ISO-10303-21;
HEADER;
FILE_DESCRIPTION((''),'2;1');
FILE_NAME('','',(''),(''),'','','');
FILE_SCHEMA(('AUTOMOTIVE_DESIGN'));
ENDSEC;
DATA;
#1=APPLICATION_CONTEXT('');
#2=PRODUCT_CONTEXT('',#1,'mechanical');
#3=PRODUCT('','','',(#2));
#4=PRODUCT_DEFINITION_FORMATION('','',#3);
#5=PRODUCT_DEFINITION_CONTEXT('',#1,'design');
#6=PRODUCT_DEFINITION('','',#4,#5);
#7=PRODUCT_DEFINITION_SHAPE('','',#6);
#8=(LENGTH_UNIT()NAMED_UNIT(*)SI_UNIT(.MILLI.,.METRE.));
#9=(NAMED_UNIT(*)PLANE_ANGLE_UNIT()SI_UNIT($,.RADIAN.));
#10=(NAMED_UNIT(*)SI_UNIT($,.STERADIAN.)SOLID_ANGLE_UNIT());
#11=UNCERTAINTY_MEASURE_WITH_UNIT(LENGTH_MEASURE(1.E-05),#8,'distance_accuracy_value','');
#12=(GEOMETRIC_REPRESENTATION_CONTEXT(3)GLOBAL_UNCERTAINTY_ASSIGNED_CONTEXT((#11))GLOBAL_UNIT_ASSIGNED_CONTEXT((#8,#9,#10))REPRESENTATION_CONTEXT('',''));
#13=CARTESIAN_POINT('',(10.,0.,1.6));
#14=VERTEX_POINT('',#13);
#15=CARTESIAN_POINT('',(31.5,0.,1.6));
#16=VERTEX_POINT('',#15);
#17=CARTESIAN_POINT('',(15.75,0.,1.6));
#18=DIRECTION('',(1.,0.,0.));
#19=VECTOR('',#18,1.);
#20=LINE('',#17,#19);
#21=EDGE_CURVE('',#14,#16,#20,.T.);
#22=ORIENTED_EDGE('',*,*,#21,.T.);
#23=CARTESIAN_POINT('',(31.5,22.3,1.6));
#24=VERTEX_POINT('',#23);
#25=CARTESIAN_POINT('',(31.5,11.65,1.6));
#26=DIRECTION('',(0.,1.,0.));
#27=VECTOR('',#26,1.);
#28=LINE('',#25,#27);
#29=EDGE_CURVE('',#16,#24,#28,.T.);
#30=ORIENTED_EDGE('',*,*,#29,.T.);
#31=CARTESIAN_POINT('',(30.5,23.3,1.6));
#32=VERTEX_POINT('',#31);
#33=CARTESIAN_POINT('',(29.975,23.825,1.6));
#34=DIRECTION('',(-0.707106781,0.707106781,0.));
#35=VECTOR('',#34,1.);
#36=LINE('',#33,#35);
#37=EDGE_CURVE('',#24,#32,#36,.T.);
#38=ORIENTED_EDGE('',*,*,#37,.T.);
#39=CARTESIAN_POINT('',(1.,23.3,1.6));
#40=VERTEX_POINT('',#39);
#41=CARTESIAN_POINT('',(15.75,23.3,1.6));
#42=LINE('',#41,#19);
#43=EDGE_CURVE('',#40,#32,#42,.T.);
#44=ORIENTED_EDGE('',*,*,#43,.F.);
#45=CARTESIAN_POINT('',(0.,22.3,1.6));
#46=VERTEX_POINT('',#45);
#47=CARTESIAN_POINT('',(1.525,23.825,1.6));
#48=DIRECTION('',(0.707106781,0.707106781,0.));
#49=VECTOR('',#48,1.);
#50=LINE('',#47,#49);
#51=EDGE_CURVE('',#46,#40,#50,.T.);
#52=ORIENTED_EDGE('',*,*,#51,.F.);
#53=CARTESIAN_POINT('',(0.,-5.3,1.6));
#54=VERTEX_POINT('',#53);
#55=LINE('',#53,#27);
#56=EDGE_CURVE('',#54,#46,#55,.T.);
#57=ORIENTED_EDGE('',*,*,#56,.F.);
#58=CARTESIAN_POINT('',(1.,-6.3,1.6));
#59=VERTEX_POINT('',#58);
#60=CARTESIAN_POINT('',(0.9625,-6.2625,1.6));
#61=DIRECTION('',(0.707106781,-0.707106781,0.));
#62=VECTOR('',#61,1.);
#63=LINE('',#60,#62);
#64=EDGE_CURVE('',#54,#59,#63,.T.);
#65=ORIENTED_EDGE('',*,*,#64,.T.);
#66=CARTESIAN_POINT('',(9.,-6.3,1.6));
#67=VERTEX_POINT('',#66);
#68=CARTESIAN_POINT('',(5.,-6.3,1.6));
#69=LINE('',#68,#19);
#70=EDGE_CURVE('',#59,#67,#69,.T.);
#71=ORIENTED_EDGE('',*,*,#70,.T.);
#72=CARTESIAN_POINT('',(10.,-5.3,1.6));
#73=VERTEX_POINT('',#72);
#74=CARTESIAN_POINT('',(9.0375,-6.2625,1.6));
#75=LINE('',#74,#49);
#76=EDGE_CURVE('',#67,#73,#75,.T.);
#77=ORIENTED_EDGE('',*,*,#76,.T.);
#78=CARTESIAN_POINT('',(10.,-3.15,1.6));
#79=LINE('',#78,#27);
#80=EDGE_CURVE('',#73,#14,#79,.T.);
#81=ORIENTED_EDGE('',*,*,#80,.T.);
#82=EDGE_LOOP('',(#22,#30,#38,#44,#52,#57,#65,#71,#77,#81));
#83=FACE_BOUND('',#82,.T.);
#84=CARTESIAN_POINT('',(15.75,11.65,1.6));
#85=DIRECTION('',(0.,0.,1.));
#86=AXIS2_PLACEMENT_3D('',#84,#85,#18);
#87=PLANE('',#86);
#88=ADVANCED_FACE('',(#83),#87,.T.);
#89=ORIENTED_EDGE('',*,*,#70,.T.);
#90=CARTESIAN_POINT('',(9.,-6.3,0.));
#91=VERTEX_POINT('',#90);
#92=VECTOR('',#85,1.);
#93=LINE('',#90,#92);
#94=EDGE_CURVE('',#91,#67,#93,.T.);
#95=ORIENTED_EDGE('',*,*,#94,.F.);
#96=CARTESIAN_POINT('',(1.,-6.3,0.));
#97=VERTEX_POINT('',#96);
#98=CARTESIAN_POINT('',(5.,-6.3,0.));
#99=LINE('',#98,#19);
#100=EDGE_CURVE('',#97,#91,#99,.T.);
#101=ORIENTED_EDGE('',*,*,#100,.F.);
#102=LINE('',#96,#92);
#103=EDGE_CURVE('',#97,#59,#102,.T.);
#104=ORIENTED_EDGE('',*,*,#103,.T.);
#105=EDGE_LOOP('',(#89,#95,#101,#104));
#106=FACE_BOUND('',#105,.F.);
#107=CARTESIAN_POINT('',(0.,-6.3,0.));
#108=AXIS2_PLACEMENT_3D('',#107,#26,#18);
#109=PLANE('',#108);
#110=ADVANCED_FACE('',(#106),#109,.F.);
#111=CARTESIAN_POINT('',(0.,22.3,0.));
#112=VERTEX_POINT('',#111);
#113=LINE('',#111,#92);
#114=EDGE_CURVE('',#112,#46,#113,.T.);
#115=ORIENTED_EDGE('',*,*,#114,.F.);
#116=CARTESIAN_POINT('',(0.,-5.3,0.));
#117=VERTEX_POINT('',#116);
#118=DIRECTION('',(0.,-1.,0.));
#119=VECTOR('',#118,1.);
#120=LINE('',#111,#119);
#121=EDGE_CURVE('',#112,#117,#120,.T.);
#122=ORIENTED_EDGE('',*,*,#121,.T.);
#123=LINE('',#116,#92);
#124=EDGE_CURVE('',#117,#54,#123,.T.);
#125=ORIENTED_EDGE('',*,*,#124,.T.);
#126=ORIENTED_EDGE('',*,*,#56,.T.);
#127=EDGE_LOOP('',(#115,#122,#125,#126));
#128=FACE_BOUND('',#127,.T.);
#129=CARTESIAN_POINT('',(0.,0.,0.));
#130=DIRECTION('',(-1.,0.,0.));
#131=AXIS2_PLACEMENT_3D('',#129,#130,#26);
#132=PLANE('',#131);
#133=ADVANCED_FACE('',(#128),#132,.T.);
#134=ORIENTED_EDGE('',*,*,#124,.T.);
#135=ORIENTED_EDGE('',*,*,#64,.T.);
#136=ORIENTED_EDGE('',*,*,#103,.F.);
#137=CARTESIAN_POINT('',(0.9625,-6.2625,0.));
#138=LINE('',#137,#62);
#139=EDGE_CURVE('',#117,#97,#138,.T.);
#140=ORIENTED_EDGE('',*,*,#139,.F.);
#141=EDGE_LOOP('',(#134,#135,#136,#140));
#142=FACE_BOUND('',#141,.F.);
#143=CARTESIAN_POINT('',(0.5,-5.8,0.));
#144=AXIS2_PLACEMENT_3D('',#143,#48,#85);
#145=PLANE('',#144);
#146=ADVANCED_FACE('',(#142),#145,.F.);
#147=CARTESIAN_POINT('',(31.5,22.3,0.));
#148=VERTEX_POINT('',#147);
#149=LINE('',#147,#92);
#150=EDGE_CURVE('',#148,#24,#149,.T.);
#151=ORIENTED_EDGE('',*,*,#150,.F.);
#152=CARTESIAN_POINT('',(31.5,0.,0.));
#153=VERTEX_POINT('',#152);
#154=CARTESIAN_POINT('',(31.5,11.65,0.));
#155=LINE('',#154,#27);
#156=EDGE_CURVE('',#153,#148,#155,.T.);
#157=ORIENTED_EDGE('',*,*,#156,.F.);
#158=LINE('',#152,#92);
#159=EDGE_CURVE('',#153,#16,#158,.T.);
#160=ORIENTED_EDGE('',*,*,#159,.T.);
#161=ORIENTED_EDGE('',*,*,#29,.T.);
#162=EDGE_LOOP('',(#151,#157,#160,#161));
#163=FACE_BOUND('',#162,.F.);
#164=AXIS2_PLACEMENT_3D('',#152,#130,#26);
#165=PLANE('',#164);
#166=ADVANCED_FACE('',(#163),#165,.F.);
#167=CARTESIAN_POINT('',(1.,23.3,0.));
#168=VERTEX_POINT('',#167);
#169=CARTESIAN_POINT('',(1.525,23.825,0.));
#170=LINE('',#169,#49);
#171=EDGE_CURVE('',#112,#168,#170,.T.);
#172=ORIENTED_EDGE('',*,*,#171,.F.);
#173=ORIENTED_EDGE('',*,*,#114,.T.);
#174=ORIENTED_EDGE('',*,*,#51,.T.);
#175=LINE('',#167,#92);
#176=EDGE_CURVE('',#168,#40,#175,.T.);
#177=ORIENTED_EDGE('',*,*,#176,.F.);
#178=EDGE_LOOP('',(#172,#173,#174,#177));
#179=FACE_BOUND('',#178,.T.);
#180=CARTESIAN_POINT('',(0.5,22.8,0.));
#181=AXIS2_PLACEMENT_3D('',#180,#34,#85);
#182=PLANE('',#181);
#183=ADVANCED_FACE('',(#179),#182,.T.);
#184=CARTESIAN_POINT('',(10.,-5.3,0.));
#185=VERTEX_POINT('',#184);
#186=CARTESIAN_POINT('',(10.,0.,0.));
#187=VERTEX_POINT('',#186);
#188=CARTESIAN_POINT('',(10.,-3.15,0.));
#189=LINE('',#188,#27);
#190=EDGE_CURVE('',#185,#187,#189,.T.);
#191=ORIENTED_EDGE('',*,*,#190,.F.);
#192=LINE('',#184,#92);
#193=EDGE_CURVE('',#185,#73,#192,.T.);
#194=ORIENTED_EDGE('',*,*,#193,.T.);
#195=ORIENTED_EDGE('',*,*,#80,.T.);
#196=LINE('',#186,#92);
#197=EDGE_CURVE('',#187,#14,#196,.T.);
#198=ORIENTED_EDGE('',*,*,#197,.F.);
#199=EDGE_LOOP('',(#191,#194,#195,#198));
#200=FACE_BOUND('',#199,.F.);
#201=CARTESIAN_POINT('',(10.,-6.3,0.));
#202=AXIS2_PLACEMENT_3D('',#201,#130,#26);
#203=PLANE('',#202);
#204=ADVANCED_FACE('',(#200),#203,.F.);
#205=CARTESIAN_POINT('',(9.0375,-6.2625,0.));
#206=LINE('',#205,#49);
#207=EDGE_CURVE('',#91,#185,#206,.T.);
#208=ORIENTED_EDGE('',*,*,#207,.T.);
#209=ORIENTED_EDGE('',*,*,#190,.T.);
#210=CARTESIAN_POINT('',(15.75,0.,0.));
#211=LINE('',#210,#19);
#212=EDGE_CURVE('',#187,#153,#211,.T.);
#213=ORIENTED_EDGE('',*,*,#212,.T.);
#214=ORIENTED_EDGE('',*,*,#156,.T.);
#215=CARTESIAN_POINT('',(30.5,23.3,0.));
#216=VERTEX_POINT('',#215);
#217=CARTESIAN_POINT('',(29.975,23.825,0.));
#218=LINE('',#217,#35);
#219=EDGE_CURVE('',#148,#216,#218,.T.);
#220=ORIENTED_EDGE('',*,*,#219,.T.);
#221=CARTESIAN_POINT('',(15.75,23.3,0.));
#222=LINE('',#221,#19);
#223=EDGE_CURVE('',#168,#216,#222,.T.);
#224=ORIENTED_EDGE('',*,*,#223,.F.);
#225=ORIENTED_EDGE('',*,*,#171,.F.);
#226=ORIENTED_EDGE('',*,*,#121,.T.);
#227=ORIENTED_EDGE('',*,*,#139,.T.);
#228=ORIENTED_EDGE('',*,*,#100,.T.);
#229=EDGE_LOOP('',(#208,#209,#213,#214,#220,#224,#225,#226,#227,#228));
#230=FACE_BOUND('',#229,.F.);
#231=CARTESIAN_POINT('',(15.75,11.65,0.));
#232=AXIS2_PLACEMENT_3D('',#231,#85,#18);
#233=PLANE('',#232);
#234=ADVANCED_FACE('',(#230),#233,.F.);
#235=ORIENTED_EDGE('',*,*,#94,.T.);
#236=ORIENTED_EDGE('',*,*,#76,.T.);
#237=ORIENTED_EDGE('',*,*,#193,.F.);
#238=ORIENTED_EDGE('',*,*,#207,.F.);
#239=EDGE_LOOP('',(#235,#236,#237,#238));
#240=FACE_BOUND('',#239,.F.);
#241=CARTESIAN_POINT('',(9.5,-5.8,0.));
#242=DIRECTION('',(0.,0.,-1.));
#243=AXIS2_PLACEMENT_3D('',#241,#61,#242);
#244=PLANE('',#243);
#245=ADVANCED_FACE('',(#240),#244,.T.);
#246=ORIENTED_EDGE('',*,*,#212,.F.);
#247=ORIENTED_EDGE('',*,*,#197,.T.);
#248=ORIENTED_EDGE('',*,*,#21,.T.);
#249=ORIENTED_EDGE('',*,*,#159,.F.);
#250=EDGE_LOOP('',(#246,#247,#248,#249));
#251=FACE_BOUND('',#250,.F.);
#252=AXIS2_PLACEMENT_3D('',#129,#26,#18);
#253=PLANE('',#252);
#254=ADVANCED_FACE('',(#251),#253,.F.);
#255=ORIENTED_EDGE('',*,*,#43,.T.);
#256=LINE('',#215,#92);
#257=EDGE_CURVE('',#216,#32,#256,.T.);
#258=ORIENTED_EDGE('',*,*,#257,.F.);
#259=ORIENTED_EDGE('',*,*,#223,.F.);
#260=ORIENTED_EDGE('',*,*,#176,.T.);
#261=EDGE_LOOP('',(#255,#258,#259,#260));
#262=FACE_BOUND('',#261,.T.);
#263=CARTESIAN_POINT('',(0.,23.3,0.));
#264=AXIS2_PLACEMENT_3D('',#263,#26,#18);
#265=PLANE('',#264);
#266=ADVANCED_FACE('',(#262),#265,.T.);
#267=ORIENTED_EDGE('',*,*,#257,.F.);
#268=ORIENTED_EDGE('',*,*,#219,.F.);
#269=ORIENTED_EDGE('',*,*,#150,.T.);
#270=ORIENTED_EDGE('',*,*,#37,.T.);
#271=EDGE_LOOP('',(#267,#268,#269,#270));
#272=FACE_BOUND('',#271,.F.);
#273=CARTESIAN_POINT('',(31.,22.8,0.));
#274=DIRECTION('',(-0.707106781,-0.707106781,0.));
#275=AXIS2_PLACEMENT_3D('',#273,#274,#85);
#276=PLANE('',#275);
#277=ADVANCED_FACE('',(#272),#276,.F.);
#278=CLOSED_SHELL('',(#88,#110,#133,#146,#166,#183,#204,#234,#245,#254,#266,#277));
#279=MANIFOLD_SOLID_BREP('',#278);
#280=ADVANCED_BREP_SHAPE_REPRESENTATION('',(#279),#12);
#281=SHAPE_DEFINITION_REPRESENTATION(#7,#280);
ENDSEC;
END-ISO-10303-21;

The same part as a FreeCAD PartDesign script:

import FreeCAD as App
import Part
import Sketcher

V = App.Vector
Q = App.Units.Quantity


def edges_at(feature, points):
    """Names of the edges that pass closest to the given points."""
    edges = feature.Shape.Edges
    near = lambda p: min(range(len(edges)), key=lambda i: edges[i].distToShape(Part.Vertex(*p))[0])
    return sorted({f"Edge{near(p) + 1}" for p in points})


def add_polygon(sketch, points):
    """Adds a closed chain of lines whose ends are joined by coincident constraints."""
    first, n = sketch.GeometryCount, len(points)
    for a, b in zip(points, points[1:] + points[:1]):
        sketch.addGeometry(Part.LineSegment(App.Vector(*a, 0), App.Vector(*b, 0)), False)
    for i in range(n):
        sketch.addConstraint(Sketcher.Constraint("Coincident", first + i, 2, first + (i + 1) % n, 1))

doc = App.newDocument("Part")
body = doc.addObject("PartDesign::Body", "Body")

sketch1 = body.newObject("Sketcher::SketchObject", "Sketch")
sketch1.AttachmentSupport = (doc.getObject("XY_Plane"), [""])
sketch1.MapMode = "FlatFace"
add_polygon(sketch1, [(0, 23), (0, 0), (32, 0), (32, 23)])
sketch1.addConstraint(Sketcher.Constraint("Vertical", 0))
sketch1.addConstraint(Sketcher.Constraint("Horizontal", 1))
sketch1.addConstraint(Sketcher.Constraint("Vertical", 2))
sketch1.addConstraint(Sketcher.Constraint("Horizontal", 3))
sketch1.addConstraint(Sketcher.Constraint("Coincident", 0, 2, -1, 1))
sketch1.addConstraint(Sketcher.Constraint("DistanceX", 1, 1, 1, 2, Q("31.5 mm")))
sketch1.addConstraint(Sketcher.Constraint("DistanceY", 0, 2, 0, 1, Q("23.3 mm")))
pad1 = body.newObject("PartDesign::Pad", "Pad")
pad1.Profile = sketch1
pad1.Length = 1.6
doc.recompute()

chamfer = body.newObject("PartDesign::Chamfer", "Chamfer")
chamfer.Base = (pad1, edges_at(pad1, [(0, 23.3, 0.8), (31.5, 23.3, 0.8)]))
chamfer.Size = 1
body2 = doc.addObject("PartDesign::Body", "Body001")

sketch2 = body2.newObject("Sketcher::SketchObject", "Sketch001")
sketch2.AttachmentSupport = (doc.getObject("XY_Plane001"), [""])
sketch2.MapMode = "FlatFace"
add_polygon(sketch2, [(0, 0), (0, -6), (10, -6), (10, 0)])
sketch2.addConstraint(Sketcher.Constraint("Vertical", 0))
sketch2.addConstraint(Sketcher.Constraint("Horizontal", 1))
sketch2.addConstraint(Sketcher.Constraint("Vertical", 2))
sketch2.addConstraint(Sketcher.Constraint("Horizontal", 3))
sketch2.addConstraint(Sketcher.Constraint("Coincident", 3, 2, -1, 1))
sketch2.addConstraint(Sketcher.Constraint("DistanceX", 1, 1, 1, 2, Q("10 mm")))
sketch2.addConstraint(Sketcher.Constraint("DistanceY", 0, 2, 0, 1, Q("6.3 mm")))
pad2 = body2.newObject("PartDesign::Pad", "Pad001")
pad2.Profile = sketch2
pad2.Length = 1.6
doc.recompute()

chamfer2 = body2.newObject("PartDesign::Chamfer", "Chamfer001")
chamfer2.Base = (pad2, edges_at(pad2, [(0, -6.3, 0.8), (10, -6.3, 0.8)]))
chamfer2.Size = 1
doc.recompute()

boolean = body2.newObject("PartDesign::Boolean", "Boolean")
boolean.Type = "Fuse"
boolean.addObjects([body])

doc.recompute()
